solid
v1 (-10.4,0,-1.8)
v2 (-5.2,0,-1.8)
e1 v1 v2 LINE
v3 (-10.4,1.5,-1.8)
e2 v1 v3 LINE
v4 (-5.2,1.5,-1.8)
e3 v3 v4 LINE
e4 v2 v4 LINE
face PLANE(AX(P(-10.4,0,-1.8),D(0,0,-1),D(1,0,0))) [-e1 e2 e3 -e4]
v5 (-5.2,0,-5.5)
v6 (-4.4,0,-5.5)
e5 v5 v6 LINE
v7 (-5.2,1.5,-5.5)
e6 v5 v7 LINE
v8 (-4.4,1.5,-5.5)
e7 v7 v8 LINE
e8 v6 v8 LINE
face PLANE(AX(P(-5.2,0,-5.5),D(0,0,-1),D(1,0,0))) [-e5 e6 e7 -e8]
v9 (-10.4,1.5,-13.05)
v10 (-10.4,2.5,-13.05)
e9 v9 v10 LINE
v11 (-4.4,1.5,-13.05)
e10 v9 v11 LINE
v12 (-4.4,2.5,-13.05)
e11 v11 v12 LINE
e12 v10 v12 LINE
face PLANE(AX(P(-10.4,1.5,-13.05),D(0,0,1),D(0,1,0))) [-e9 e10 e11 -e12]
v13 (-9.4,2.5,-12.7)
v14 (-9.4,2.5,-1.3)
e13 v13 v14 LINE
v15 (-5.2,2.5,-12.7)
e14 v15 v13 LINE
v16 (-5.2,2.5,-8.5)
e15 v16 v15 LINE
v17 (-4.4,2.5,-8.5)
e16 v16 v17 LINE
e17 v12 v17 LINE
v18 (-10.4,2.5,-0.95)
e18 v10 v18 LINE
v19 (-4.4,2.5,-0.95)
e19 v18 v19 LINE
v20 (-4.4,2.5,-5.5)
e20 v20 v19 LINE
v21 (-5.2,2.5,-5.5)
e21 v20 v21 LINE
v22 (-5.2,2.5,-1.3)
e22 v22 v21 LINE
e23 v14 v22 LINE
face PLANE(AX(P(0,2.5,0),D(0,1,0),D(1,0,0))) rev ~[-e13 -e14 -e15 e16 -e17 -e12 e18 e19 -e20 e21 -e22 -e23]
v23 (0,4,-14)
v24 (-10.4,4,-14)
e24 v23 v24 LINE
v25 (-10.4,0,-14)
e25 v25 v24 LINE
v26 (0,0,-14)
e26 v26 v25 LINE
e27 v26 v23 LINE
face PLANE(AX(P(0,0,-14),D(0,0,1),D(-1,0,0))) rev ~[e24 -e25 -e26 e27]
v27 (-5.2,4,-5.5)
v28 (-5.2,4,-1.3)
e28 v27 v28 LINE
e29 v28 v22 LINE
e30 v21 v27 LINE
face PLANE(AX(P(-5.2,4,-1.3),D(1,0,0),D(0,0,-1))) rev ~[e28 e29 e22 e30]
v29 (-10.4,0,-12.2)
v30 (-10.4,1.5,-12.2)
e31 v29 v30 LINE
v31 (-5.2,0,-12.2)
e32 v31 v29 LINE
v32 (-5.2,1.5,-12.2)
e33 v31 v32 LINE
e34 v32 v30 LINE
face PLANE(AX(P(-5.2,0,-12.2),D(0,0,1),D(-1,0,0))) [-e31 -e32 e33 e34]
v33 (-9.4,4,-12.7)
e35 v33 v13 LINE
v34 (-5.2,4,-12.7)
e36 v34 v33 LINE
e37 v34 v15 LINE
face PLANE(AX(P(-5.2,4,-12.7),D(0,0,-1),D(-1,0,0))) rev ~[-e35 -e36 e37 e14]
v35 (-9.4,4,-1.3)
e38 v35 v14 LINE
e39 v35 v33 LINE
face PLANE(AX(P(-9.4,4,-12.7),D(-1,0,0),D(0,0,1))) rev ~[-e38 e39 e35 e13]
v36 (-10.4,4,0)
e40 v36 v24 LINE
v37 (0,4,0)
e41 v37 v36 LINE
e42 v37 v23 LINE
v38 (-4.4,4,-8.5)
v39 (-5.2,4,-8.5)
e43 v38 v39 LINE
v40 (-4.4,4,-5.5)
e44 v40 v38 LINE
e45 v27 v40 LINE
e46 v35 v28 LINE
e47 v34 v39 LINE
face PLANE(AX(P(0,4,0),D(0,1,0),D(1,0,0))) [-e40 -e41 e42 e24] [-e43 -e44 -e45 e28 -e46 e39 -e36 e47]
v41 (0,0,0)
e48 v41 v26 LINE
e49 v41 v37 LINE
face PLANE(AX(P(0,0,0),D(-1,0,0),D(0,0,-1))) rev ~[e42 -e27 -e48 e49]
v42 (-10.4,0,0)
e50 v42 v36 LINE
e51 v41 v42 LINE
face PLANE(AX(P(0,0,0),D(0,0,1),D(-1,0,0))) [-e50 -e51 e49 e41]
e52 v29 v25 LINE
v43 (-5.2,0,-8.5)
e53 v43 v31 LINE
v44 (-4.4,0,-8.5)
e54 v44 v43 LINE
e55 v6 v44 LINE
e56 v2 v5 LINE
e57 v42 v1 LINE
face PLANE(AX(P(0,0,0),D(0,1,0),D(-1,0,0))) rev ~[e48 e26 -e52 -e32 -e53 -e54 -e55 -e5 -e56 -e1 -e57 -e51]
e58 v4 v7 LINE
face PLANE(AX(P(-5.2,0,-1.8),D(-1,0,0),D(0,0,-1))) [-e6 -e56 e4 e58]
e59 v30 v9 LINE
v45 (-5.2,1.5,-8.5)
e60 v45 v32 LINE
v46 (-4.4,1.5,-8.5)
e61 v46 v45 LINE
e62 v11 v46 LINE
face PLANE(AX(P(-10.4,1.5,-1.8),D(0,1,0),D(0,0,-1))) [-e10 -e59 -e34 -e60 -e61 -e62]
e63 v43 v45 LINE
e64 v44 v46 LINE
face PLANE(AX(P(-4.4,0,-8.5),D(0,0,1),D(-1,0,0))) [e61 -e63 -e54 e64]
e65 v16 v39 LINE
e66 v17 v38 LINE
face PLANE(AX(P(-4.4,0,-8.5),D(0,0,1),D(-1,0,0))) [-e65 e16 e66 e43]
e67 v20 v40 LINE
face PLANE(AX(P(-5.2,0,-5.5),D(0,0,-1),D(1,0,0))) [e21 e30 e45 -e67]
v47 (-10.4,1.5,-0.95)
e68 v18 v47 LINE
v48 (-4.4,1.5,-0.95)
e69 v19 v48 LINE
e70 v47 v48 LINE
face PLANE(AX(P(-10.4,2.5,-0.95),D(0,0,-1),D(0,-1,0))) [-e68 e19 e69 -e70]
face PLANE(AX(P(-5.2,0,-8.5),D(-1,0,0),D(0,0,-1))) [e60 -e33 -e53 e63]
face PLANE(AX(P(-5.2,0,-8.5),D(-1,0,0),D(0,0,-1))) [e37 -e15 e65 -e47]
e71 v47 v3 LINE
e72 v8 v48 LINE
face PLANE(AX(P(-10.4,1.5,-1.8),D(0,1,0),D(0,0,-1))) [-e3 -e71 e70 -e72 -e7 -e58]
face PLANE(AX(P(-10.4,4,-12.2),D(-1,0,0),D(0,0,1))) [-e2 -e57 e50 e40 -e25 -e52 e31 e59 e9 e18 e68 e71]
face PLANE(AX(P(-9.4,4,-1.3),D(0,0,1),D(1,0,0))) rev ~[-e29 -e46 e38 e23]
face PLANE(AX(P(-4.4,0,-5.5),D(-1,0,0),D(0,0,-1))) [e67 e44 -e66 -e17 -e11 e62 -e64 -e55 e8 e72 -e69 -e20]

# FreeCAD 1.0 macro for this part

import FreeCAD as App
import Part
import Sketcher

V = App.Vector
Q = App.Units.Quantity

doc = App.newDocument("Part")
body = doc.addObject("PartDesign::Body", "Body")

sketch1 = body.newObject("Sketcher::SketchObject", "Sketch")
sketch1.AttachmentSupport = (doc.getObject("XZ_Plane"), [""])
sketch1.MapMode = "FlatFace"
sketch1.addGeometry([
    Part.LineSegment(V(-10.4, 0, 0), V(0, 0, 0)),
    Part.LineSegment(V(0, 0, 0), V(0, -14, 0)),
    Part.LineSegment(V(0, -14, 0), V(-10.4, -14, 0)),
    Part.LineSegment(V(-10.4, -14, 0), V(-10.4, -12.2, 0)),
    Part.LineSegment(V(-10.4, -12.2, 0), V(-5.2, -12.2, 0)),
    Part.LineSegment(V(-5.2, -12.2, 0), V(-5.2, -8.5, 0)),
    Part.LineSegment(V(-5.2, -8.5, 0), V(-4.4, -8.5, 0)),
    Part.LineSegment(V(-4.4, -8.5, 0), V(-4.4, -5.5, 0)),
    Part.LineSegment(V(-4.4, -5.5, 0), V(-5.2, -5.5, 0)),
    Part.LineSegment(V(-5.2, -5.5, 0), V(-5.2, -1.8, 0)),
    Part.LineSegment(V(-5.2, -1.8, 0), V(-10.4, -1.8, 0)),
    Part.LineSegment(V(-10.4, -1.8, 0), V(-10.4, 0, 0)),
], False)
sketch1.addConstraint([
    Sketcher.Constraint("Coincident", 0, 2, 1, 1),
    Sketcher.Constraint("Coincident", 1, 2, 2, 1),
    Sketcher.Constraint("Coincident", 2, 2, 3, 1),
    Sketcher.Constraint("Coincident", 3, 2, 4, 1),
    Sketcher.Constraint("Coincident", 4, 2, 5, 1),
    Sketcher.Constraint("Coincident", 5, 2, 6, 1),
    Sketcher.Constraint("Coincident", 6, 2, 7, 1),
    Sketcher.Constraint("Coincident", 7, 2, 8, 1),
    Sketcher.Constraint("Coincident", 8, 2, 9, 1),
    Sketcher.Constraint("Coincident", 9, 2, 10, 1),
    Sketcher.Constraint("Coincident", 10, 2, 11, 1),
    Sketcher.Constraint("Coincident", 11, 2, 0, 1),
    Sketcher.Constraint("Horizontal", 0),
    Sketcher.Constraint("Vertical", 1),
    Sketcher.Constraint("Horizontal", 2),
    Sketcher.Constraint("Vertical", 3),
    Sketcher.Constraint("Horizontal", 4),
    Sketcher.Constraint("Vertical", 5),
    Sketcher.Constraint("Horizontal", 6),
    Sketcher.Constraint("Vertical", 7),
    Sketcher.Constraint("Horizontal", 8),
    Sketcher.Constraint("Vertical", 9),
    Sketcher.Constraint("Horizontal", 10),
    Sketcher.Constraint("Vertical", 11),
    Sketcher.Constraint("Coincident", 0, 2, -1, 1),
    Sketcher.Constraint("Vertical", 5, 2, 8, 2),
    Sketcher.Constraint("Vertical", 3, 2, 10, 2),
    Sketcher.Constraint("Equal", 5, 9),
    Sketcher.Constraint("Equal", 3, 11),
    Sketcher.Constraint("DistanceY", 1, 2, 1, 1, Q("14 mm")),
    Sketcher.Constraint("DistanceY", 7, 1, 7, 2, Q("3 mm")),
    Sketcher.Constraint("DistanceX", 0, 1, 0, 2, Q("10.4 mm")),
    Sketcher.Constraint("DistanceX", 6, 1, 6, 2, Q("0.8 mm")),
    Sketcher.Constraint("DistanceY", 3, 1, 3, 2, Q("1.8 mm")),
    Sketcher.Constraint("DistanceX", 3, 2, 6, 2, Q("6 mm")),
])
pad1 = body.newObject("PartDesign::Pad", "Pad")
pad1.Profile = sketch1
pad1.Length = 4
pad1.Reversed = True

sketch2 = body.newObject("Sketcher::SketchObject", "Sketch001")
sketch2.AttachmentSupport = (doc.getObject("YZ_Plane"), [""])
sketch2.MapMode = "FlatFace"
sketch2.AttachmentOffset = App.Placement(V(0, 0, -10.4), App.Rotation())
sketch2.addGeometry([
    Part.LineSegment(V(1.5, -0.9, 0), V(2.5, -0.9, 0)),
    Part.LineSegment(V(2.5, -0.9, 0), V(2.5, -13.1, 0)),
    Part.LineSegment(V(2.5, -13.1, 0), V(1.5, -13.1, 0)),
    Part.LineSegment(V(1.5, -13.1, 0), V(1.5, -0.9, 0)),
], False)
sketch2.addConstraint([
    Sketcher.Constraint("Coincident", 0, 2, 1, 1),
    Sketcher.Constraint("Coincident", 1, 2, 2, 1),
    Sketcher.Constraint("Coincident", 2, 2, 3, 1),
    Sketcher.Constraint("Coincident", 3, 2, 0, 1),
    Sketcher.Constraint("Horizontal", 0),
    Sketcher.Constraint("Vertical", 1),
    Sketcher.Constraint("Horizontal", 2),
    Sketcher.Constraint("Vertical", 3),
    Sketcher.Constraint("DistanceX", 0, 1, 0, 2, Q("1 mm")),
    Sketcher.Constraint("DistanceY", 1, 2, 1, 1, Q("12.1 mm")),
    Sketcher.Constraint("DistanceX", -1, 1, 2, 2, Q("1.5 mm")),
    Sketcher.Constraint("DistanceY", 0, 2, -1, 1, Q("0.95 mm")),
])
pocket1 = body.newObject("PartDesign::Pocket", "Pocket")
pocket1.Profile = sketch2
pocket1.Length = 6
pocket1.Reversed = True

sketch3 = body.newObject("Sketcher::SketchObject", "Sketch002")
sketch3.AttachmentSupport = (doc.getObject("XZ_Plane"), [""])
sketch3.MapMode = "FlatFace"
sketch3.AttachmentOffset = App.Placement(V(0, 0, -4), App.Rotation())
sketch3.addGeometry([
    Part.LineSegment(V(-10.4, -12.2, 0), V(-10.4, -1.8, 0)),
    Part.LineSegment(V(-10.4, -1.8, 0), V(-9.4, -1.8, 0)),
    Part.LineSegment(V(-9.4, -1.8, 0), V(-9.4, -12.2, 0)),
    Part.LineSegment(V(-9.4, -12.2, 0), V(-10.4, -12.2, 0)),
], False)
sketch3.addConstraint([
    Sketcher.Constraint("Coincident", 0, 2, 1, 1),
    Sketcher.Constraint("Coincident", 1, 2, 2, 1),
    Sketcher.Constraint("Coincident", 2, 2, 3, 1),
    Sketcher.Constraint("Coincident", 3, 2, 0, 1),
    Sketcher.Constraint("Vertical", 0),
    Sketcher.Constraint("Horizontal", 1),
    Sketcher.Constraint("Vertical", 2),
    Sketcher.Constraint("Horizontal", 3),
    Sketcher.Constraint("DistanceX", 1, 1, 1, 2, Q("1 mm")),
    Sketcher.Constraint("DistanceY", 0, 1, 0, 2, Q("10.4 mm")),
    Sketcher.Constraint("DistanceX", 0, 2, -1, 1, Q("10.4 mm")),
    Sketcher.Constraint("DistanceY", 0, 2, -1, 1, Q("1.8 mm")),
])
pad2 = body.newObject("PartDesign::Pad", "Pad001")
pad2.Profile = sketch3
pad2.Length = 1.5

sketch4 = body.newObject("Sketcher::SketchObject", "Sketch003")
sketch4.AttachmentSupport = (doc.getObject("XZ_Plane"), [""])
sketch4.MapMode = "FlatFace"
sketch4.AttachmentOffset = App.Placement(V(0, 0, -4), App.Rotation())
sketch4.addGeometry([
    Part.LineSegment(V(-9.4, -1.8, 0), V(-9.4, -1.3, 0)),
    Part.LineSegment(V(-9.4, -1.3, 0), V(-5.2, -1.3, 0)),
    Part.LineSegment(V(-5.2, -1.3, 0), V(-5.2, -1.8, 0)),
    Part.LineSegment(V(-5.2, -1.8, 0), V(-9.4, -1.8, 0)),
    Part.LineSegment(V(-9.4, -12.7, 0), V(-9.4, -12.2, 0)),
    Part.LineSegment(V(-9.4, -12.2, 0), V(-5.2, -12.2, 0)),
    Part.LineSegment(V(-5.2, -12.2, 0), V(-5.2, -12.7, 0)),
    Part.LineSegment(V(-5.2, -12.7, 0), V(-9.4, -12.7, 0)),
], False)
sketch4.addConstraint([
    Sketcher.Constraint("Coincident", 0, 2, 1, 1),
    Sketcher.Constraint("Coincident", 1, 2, 2, 1),
    Sketcher.Constraint("Coincident", 2, 2, 3, 1),
    Sketcher.Constraint("Coincident", 3, 2, 0, 1),
    Sketcher.Constraint("Coincident", 4, 2, 5, 1),
    Sketcher.Constraint("Coincident", 5, 2, 6, 1),
    Sketcher.Constraint("Coincident", 6, 2, 7, 1),
    Sketcher.Constraint("Coincident", 7, 2, 4, 1),
    Sketcher.Constraint("Vertical", 0),
    Sketcher.Constraint("Horizontal", 1),
    Sketcher.Constraint("Vertical", 2),
    Sketcher.Constraint("Horizontal", 3),
    Sketcher.Constraint("Vertical", 4),
    Sketcher.Constraint("Horizontal", 5),
    Sketcher.Constraint("Vertical", 6),
    Sketcher.Constraint("Horizontal", 7),
    Sketcher.Constraint("Vertical", 3, 2, 4, 2),
    Sketcher.Constraint("Vertical", 2, 2, 5, 2),
    Sketcher.Constraint("Equal", 2, 4),
    Sketcher.Constraint("DistanceY", 0, 1, 0, 2, Q("0.5 mm")),
    Sketcher.Constraint("DistanceX", 1, 1, 1, 2, Q("4.2 mm")),
    Sketcher.Constraint("DistanceX", 0, 2, -1, 1, Q("9.4 mm")),
    Sketcher.Constraint("DistanceY", 0, 2, -1, 1, Q("1.3 mm")),
    Sketcher.Constraint("DistanceY", 4, 2, -1, 1, Q("12.2 mm")),
])
pocket2 = body.newObject("PartDesign::Pocket", "Pocket001")
pocket2.Profile = sketch4
pocket2.Length = 1.5
pocket2.Reversed = True

doc.recompute()
